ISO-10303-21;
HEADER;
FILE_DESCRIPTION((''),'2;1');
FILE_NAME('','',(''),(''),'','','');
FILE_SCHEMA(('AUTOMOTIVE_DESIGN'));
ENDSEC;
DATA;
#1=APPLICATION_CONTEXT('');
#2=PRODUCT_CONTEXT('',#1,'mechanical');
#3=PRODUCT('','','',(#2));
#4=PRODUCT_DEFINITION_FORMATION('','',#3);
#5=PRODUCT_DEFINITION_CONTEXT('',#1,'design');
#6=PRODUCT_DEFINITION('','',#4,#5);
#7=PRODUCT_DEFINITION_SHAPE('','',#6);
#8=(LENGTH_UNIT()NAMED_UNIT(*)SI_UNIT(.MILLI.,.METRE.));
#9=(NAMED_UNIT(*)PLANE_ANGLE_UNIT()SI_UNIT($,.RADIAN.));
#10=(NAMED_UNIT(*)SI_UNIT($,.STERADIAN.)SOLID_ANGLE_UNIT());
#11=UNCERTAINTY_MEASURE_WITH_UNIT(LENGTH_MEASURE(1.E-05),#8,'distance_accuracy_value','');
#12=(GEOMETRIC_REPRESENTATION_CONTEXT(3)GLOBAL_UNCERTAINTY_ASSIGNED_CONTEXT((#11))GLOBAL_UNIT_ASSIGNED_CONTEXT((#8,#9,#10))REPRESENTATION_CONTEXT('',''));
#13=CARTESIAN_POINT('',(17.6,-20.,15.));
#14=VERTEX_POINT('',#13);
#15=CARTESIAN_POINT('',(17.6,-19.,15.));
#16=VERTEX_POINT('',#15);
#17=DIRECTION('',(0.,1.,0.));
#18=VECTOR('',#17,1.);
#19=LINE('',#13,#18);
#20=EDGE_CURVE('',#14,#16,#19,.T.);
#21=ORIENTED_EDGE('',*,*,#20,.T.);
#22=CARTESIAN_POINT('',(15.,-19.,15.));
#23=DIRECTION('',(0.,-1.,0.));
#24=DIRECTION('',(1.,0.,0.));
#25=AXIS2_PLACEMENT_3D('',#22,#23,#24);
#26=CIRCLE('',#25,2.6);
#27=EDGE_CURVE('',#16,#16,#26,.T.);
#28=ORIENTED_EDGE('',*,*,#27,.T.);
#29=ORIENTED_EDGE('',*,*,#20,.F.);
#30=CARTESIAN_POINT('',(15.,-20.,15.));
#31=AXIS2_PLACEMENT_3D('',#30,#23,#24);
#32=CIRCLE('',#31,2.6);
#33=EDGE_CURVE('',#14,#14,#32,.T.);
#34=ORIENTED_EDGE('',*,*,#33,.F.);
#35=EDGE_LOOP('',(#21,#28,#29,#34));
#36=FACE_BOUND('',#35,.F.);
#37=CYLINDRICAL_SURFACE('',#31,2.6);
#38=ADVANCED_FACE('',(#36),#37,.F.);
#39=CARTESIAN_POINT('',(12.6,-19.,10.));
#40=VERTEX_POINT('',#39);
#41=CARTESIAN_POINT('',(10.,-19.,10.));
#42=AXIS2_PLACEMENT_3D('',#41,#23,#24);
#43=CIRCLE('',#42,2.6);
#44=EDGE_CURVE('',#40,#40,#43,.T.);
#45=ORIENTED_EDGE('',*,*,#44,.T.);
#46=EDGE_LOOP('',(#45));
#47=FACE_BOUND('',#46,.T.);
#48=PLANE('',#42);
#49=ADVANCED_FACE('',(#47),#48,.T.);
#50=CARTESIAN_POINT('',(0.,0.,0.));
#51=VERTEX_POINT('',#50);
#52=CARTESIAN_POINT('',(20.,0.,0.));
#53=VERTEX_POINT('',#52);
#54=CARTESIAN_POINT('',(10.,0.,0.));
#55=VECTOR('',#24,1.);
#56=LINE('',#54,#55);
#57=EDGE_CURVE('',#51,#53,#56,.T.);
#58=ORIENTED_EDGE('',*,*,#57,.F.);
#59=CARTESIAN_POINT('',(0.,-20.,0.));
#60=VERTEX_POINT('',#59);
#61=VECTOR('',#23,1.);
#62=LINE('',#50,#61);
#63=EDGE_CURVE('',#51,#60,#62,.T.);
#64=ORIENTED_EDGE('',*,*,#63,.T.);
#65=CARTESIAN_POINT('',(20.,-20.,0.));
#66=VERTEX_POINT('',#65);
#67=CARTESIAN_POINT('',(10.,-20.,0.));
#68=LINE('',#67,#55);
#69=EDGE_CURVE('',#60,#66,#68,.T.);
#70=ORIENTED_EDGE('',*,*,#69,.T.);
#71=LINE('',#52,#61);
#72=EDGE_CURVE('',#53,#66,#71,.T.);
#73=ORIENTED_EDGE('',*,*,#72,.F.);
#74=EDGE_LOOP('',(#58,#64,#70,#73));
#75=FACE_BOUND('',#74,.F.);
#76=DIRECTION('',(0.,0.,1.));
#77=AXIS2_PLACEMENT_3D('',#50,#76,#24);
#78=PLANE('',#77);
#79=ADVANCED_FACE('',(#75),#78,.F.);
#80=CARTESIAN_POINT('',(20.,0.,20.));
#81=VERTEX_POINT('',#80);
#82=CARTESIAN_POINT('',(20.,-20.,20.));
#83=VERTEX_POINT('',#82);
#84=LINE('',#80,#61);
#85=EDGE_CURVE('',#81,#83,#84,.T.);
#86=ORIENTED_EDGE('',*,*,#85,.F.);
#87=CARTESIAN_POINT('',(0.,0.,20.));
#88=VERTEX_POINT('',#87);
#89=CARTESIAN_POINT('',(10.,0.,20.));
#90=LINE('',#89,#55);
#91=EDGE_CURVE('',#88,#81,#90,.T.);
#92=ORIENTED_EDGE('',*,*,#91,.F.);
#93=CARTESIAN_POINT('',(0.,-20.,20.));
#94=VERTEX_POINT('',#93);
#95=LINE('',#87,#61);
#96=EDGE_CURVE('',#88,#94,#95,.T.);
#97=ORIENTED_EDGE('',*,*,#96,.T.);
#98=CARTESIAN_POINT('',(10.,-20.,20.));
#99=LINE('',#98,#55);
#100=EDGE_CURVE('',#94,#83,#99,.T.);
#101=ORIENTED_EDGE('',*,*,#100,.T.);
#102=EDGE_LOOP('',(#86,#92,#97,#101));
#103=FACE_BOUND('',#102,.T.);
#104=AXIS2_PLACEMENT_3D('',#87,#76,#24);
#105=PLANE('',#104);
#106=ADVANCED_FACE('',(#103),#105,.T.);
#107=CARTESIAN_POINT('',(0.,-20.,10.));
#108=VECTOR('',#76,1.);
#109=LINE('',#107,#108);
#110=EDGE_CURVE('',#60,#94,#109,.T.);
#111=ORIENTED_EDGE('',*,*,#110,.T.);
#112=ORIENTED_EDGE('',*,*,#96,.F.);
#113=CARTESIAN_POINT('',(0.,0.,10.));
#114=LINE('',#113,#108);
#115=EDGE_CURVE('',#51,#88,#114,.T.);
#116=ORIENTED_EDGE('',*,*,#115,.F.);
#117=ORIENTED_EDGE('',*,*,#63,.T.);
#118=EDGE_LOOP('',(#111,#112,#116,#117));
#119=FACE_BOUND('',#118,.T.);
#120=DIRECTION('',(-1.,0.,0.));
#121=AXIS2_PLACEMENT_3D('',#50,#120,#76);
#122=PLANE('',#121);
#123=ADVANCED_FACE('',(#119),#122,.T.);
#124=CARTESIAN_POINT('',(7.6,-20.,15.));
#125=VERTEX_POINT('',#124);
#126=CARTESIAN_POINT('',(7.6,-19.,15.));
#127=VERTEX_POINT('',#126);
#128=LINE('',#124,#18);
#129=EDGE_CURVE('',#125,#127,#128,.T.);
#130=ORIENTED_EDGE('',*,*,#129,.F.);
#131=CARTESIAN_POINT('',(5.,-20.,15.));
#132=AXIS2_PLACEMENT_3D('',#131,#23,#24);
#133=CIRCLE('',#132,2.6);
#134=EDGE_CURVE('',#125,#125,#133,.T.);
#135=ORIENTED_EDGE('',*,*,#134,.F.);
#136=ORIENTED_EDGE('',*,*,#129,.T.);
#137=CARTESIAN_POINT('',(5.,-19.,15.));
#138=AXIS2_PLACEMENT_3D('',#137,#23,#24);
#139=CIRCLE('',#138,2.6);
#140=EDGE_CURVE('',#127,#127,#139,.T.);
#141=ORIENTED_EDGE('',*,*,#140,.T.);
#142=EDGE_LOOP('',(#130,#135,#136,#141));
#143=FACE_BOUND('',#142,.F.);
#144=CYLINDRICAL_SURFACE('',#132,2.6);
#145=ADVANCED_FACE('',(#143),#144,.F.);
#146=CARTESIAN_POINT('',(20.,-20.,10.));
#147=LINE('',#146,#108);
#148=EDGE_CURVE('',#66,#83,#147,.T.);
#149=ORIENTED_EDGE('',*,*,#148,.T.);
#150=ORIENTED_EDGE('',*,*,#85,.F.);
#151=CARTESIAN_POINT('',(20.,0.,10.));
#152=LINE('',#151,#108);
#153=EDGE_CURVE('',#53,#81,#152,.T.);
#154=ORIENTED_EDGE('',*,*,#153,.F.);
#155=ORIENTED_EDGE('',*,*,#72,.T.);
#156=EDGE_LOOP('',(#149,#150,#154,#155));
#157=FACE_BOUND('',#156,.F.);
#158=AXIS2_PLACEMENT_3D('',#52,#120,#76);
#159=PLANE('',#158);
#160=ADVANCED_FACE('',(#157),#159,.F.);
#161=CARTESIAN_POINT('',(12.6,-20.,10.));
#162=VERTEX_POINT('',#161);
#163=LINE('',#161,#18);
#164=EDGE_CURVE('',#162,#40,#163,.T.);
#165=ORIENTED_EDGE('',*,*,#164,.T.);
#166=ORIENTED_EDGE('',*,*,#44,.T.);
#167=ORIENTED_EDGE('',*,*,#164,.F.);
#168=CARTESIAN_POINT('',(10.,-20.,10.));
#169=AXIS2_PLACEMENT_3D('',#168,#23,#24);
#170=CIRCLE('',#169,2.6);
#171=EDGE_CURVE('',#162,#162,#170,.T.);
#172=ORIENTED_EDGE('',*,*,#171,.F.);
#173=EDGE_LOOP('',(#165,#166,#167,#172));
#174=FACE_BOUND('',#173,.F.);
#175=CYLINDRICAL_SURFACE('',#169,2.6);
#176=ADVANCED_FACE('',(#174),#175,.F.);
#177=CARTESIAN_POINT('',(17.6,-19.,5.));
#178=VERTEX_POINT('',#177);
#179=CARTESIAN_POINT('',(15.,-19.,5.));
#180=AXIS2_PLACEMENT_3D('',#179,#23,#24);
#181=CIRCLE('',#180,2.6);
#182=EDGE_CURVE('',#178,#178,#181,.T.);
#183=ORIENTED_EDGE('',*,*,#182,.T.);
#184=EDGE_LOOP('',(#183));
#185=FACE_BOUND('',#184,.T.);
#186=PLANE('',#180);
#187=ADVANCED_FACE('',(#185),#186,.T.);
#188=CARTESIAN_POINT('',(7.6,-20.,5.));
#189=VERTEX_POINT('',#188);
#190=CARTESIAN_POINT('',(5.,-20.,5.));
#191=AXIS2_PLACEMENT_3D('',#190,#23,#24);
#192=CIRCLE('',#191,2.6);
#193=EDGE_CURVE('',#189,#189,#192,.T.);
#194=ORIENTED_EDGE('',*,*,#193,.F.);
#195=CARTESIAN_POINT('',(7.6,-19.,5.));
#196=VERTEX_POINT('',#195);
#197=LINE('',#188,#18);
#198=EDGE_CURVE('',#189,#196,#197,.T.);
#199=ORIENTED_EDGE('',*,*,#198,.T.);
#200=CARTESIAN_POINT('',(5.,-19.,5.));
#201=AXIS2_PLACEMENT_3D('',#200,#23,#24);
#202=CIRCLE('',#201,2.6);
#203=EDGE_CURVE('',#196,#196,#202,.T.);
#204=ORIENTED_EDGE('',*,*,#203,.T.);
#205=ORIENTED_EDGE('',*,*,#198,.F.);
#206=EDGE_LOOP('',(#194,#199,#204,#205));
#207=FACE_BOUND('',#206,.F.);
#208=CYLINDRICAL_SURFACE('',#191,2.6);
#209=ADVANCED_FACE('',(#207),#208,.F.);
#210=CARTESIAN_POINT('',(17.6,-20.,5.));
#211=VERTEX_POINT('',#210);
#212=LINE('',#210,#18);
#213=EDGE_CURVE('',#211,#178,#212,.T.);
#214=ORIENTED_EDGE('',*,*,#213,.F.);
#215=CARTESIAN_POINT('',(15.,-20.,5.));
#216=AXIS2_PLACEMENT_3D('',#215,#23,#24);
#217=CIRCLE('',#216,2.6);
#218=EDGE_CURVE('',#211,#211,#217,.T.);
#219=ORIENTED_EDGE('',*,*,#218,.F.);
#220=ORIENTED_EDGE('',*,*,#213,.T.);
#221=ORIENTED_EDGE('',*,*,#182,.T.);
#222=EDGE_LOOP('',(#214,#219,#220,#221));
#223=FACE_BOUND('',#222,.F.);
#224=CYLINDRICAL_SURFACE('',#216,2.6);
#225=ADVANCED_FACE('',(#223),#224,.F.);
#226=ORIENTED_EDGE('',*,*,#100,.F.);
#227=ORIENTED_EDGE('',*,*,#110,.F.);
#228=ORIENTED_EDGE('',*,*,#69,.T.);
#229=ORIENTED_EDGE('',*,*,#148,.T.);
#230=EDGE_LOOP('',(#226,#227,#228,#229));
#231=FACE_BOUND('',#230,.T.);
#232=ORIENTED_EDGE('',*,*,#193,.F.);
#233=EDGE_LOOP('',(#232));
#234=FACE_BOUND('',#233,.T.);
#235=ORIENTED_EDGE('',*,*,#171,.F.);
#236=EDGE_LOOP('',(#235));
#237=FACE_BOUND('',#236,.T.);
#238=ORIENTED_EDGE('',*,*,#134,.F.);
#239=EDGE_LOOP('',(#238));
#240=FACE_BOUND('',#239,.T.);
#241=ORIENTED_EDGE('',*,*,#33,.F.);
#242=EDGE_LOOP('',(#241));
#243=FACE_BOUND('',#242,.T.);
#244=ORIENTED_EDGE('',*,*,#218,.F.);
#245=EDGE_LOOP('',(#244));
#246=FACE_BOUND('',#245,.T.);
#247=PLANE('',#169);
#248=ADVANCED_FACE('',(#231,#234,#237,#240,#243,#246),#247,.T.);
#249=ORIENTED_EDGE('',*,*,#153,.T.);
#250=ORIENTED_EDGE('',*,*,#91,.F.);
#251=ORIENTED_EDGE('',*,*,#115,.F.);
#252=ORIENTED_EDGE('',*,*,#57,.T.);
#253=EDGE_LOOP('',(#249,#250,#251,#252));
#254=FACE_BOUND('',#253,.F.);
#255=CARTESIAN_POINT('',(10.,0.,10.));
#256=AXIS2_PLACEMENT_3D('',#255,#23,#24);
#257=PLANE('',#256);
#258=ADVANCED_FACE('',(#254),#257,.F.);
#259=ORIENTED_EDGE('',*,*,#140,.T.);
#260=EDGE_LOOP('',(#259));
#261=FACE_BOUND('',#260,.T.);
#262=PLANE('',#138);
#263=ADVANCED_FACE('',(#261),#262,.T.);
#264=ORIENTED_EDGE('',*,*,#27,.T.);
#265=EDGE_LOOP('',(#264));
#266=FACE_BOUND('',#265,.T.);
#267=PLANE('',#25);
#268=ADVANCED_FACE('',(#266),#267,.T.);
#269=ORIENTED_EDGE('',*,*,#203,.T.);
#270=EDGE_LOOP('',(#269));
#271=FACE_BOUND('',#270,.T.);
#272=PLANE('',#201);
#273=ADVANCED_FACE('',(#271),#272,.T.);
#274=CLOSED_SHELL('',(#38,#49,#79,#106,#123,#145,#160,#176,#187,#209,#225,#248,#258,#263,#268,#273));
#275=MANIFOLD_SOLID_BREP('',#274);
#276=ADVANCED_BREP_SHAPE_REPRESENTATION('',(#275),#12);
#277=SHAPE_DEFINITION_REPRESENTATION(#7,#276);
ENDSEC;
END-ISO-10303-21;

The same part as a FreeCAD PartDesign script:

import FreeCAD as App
import Part
import Sketcher

V = App.Vector
Q = App.Units.Quantity

doc = App.newDocument("Part")
body = doc.addObject("PartDesign::Body", "Body")

# Sketch on XZ plane
sketch1 = body.newObject("Sketcher::SketchObject", "Sketch")
sketch1.AttachmentSupport = (doc.getObject("XZ_Plane"), [""])
sketch1.MapMode = "FlatFace"
sketch1.addGeometry([
    Part.LineSegment(V(0, 20, 0), V(0, 0, 0)),
    Part.LineSegment(V(0, 0, 0), V(20, 0, 0)),
    Part.LineSegment(V(20, 0, 0), V(20, 20, 0)),
    Part.LineSegment(V(20, 20, 0), V(0, 20, 0)),
], False)
sketch1.addConstraint([
    Sketcher.Constraint("Coincident", 0, 2, 1, 1),
    Sketcher.Constraint("Coincident", 1, 2, 2, 1),
    Sketcher.Constraint("Coincident", 2, 2, 3, 1),
    Sketcher.Constraint("Coincident", 3, 2, 0, 1),
    Sketcher.Constraint("Vertical", 0),
    Sketcher.Constraint("Horizontal", 1),
    Sketcher.Constraint("Vertical", 2),
    Sketcher.Constraint("Horizontal", 3),
    Sketcher.Constraint("Coincident", 0, 2, -1, 1),
    Sketcher.Constraint("Equal", 3, 0),
    Sketcher.Constraint("DistanceX", 1, 1, 1, 2, Q("20 mm")),
])
pad1 = body.newObject("PartDesign::Pad", "Pad")
pad1.Profile = sketch1
pad1.Length = 20

# Sketch on XZ plane
sketch2 = body.newObject("Sketcher::SketchObject", "Sketch001")
sketch2.AttachmentSupport = (doc.getObject("XZ_Plane"), [""])
sketch2.MapMode = "FlatFace"
sketch2.AttachmentOffset = App.Placement(V(0, 0, 20), App.Rotation())
sketch2.addGeometry([
    Part.Circle(V(10, 10, 0), V(0, 0, 1), 2.6),  # 0
    Part.Circle(V(5, 15, 0), V(0, 0, 1), 2.6),  # 1
    Part.Circle(V(15, 15, 0), V(0, 0, 1), 2.6),  # 2
    Part.Circle(V(15, 5, 0), V(0, 0, 1), 2.6),  # 3
    Part.Circle(V(5, 5, 0), V(0, 0, 1), 2.6),  # 4
], False)
sketch2.addConstraint([
    Sketcher.Constraint("Equal", 0, 1),
    Sketcher.Constraint("Equal", 1, 2),
    Sketcher.Constraint("Equal", 2, 3),
    Sketcher.Constraint("Equal", 3, 4),
    Sketcher.Constraint("Horizontal", 1, 3, 2, 3),
    Sketcher.Constraint("Horizontal", 3, 3, 4, 3),
    Sketcher.Constraint("Vertical", 2, 3, 3, 3),
    Sketcher.Constraint("Vertical", 1, 3, 4, 3),
    Sketcher.Constraint("Diameter", 0, Q("5.2 mm")),
    Sketcher.Constraint("DistanceX", -1, 1, 0, 3, Q("10 mm")),
    Sketcher.Constraint("DistanceY", -1, 1, 0, 3, Q("10 mm")),
    Sketcher.Constraint("DistanceX", -1, 1, 1, 3, Q("5 mm")),
    Sketcher.Constraint("DistanceY", -1, 1, 1, 3, Q("15 mm")),
    Sketcher.Constraint("DistanceX", -1, 1, 2, 3, Q("15 mm")),
    Sketcher.Constraint("DistanceY", -1, 1, 3, 3, Q("5 mm")),
])
pocket1 = body.newObject("PartDesign::Pocket", "Pocket")
pocket1.Profile = sketch2
pocket1.Length = 1

doc.recompute()
